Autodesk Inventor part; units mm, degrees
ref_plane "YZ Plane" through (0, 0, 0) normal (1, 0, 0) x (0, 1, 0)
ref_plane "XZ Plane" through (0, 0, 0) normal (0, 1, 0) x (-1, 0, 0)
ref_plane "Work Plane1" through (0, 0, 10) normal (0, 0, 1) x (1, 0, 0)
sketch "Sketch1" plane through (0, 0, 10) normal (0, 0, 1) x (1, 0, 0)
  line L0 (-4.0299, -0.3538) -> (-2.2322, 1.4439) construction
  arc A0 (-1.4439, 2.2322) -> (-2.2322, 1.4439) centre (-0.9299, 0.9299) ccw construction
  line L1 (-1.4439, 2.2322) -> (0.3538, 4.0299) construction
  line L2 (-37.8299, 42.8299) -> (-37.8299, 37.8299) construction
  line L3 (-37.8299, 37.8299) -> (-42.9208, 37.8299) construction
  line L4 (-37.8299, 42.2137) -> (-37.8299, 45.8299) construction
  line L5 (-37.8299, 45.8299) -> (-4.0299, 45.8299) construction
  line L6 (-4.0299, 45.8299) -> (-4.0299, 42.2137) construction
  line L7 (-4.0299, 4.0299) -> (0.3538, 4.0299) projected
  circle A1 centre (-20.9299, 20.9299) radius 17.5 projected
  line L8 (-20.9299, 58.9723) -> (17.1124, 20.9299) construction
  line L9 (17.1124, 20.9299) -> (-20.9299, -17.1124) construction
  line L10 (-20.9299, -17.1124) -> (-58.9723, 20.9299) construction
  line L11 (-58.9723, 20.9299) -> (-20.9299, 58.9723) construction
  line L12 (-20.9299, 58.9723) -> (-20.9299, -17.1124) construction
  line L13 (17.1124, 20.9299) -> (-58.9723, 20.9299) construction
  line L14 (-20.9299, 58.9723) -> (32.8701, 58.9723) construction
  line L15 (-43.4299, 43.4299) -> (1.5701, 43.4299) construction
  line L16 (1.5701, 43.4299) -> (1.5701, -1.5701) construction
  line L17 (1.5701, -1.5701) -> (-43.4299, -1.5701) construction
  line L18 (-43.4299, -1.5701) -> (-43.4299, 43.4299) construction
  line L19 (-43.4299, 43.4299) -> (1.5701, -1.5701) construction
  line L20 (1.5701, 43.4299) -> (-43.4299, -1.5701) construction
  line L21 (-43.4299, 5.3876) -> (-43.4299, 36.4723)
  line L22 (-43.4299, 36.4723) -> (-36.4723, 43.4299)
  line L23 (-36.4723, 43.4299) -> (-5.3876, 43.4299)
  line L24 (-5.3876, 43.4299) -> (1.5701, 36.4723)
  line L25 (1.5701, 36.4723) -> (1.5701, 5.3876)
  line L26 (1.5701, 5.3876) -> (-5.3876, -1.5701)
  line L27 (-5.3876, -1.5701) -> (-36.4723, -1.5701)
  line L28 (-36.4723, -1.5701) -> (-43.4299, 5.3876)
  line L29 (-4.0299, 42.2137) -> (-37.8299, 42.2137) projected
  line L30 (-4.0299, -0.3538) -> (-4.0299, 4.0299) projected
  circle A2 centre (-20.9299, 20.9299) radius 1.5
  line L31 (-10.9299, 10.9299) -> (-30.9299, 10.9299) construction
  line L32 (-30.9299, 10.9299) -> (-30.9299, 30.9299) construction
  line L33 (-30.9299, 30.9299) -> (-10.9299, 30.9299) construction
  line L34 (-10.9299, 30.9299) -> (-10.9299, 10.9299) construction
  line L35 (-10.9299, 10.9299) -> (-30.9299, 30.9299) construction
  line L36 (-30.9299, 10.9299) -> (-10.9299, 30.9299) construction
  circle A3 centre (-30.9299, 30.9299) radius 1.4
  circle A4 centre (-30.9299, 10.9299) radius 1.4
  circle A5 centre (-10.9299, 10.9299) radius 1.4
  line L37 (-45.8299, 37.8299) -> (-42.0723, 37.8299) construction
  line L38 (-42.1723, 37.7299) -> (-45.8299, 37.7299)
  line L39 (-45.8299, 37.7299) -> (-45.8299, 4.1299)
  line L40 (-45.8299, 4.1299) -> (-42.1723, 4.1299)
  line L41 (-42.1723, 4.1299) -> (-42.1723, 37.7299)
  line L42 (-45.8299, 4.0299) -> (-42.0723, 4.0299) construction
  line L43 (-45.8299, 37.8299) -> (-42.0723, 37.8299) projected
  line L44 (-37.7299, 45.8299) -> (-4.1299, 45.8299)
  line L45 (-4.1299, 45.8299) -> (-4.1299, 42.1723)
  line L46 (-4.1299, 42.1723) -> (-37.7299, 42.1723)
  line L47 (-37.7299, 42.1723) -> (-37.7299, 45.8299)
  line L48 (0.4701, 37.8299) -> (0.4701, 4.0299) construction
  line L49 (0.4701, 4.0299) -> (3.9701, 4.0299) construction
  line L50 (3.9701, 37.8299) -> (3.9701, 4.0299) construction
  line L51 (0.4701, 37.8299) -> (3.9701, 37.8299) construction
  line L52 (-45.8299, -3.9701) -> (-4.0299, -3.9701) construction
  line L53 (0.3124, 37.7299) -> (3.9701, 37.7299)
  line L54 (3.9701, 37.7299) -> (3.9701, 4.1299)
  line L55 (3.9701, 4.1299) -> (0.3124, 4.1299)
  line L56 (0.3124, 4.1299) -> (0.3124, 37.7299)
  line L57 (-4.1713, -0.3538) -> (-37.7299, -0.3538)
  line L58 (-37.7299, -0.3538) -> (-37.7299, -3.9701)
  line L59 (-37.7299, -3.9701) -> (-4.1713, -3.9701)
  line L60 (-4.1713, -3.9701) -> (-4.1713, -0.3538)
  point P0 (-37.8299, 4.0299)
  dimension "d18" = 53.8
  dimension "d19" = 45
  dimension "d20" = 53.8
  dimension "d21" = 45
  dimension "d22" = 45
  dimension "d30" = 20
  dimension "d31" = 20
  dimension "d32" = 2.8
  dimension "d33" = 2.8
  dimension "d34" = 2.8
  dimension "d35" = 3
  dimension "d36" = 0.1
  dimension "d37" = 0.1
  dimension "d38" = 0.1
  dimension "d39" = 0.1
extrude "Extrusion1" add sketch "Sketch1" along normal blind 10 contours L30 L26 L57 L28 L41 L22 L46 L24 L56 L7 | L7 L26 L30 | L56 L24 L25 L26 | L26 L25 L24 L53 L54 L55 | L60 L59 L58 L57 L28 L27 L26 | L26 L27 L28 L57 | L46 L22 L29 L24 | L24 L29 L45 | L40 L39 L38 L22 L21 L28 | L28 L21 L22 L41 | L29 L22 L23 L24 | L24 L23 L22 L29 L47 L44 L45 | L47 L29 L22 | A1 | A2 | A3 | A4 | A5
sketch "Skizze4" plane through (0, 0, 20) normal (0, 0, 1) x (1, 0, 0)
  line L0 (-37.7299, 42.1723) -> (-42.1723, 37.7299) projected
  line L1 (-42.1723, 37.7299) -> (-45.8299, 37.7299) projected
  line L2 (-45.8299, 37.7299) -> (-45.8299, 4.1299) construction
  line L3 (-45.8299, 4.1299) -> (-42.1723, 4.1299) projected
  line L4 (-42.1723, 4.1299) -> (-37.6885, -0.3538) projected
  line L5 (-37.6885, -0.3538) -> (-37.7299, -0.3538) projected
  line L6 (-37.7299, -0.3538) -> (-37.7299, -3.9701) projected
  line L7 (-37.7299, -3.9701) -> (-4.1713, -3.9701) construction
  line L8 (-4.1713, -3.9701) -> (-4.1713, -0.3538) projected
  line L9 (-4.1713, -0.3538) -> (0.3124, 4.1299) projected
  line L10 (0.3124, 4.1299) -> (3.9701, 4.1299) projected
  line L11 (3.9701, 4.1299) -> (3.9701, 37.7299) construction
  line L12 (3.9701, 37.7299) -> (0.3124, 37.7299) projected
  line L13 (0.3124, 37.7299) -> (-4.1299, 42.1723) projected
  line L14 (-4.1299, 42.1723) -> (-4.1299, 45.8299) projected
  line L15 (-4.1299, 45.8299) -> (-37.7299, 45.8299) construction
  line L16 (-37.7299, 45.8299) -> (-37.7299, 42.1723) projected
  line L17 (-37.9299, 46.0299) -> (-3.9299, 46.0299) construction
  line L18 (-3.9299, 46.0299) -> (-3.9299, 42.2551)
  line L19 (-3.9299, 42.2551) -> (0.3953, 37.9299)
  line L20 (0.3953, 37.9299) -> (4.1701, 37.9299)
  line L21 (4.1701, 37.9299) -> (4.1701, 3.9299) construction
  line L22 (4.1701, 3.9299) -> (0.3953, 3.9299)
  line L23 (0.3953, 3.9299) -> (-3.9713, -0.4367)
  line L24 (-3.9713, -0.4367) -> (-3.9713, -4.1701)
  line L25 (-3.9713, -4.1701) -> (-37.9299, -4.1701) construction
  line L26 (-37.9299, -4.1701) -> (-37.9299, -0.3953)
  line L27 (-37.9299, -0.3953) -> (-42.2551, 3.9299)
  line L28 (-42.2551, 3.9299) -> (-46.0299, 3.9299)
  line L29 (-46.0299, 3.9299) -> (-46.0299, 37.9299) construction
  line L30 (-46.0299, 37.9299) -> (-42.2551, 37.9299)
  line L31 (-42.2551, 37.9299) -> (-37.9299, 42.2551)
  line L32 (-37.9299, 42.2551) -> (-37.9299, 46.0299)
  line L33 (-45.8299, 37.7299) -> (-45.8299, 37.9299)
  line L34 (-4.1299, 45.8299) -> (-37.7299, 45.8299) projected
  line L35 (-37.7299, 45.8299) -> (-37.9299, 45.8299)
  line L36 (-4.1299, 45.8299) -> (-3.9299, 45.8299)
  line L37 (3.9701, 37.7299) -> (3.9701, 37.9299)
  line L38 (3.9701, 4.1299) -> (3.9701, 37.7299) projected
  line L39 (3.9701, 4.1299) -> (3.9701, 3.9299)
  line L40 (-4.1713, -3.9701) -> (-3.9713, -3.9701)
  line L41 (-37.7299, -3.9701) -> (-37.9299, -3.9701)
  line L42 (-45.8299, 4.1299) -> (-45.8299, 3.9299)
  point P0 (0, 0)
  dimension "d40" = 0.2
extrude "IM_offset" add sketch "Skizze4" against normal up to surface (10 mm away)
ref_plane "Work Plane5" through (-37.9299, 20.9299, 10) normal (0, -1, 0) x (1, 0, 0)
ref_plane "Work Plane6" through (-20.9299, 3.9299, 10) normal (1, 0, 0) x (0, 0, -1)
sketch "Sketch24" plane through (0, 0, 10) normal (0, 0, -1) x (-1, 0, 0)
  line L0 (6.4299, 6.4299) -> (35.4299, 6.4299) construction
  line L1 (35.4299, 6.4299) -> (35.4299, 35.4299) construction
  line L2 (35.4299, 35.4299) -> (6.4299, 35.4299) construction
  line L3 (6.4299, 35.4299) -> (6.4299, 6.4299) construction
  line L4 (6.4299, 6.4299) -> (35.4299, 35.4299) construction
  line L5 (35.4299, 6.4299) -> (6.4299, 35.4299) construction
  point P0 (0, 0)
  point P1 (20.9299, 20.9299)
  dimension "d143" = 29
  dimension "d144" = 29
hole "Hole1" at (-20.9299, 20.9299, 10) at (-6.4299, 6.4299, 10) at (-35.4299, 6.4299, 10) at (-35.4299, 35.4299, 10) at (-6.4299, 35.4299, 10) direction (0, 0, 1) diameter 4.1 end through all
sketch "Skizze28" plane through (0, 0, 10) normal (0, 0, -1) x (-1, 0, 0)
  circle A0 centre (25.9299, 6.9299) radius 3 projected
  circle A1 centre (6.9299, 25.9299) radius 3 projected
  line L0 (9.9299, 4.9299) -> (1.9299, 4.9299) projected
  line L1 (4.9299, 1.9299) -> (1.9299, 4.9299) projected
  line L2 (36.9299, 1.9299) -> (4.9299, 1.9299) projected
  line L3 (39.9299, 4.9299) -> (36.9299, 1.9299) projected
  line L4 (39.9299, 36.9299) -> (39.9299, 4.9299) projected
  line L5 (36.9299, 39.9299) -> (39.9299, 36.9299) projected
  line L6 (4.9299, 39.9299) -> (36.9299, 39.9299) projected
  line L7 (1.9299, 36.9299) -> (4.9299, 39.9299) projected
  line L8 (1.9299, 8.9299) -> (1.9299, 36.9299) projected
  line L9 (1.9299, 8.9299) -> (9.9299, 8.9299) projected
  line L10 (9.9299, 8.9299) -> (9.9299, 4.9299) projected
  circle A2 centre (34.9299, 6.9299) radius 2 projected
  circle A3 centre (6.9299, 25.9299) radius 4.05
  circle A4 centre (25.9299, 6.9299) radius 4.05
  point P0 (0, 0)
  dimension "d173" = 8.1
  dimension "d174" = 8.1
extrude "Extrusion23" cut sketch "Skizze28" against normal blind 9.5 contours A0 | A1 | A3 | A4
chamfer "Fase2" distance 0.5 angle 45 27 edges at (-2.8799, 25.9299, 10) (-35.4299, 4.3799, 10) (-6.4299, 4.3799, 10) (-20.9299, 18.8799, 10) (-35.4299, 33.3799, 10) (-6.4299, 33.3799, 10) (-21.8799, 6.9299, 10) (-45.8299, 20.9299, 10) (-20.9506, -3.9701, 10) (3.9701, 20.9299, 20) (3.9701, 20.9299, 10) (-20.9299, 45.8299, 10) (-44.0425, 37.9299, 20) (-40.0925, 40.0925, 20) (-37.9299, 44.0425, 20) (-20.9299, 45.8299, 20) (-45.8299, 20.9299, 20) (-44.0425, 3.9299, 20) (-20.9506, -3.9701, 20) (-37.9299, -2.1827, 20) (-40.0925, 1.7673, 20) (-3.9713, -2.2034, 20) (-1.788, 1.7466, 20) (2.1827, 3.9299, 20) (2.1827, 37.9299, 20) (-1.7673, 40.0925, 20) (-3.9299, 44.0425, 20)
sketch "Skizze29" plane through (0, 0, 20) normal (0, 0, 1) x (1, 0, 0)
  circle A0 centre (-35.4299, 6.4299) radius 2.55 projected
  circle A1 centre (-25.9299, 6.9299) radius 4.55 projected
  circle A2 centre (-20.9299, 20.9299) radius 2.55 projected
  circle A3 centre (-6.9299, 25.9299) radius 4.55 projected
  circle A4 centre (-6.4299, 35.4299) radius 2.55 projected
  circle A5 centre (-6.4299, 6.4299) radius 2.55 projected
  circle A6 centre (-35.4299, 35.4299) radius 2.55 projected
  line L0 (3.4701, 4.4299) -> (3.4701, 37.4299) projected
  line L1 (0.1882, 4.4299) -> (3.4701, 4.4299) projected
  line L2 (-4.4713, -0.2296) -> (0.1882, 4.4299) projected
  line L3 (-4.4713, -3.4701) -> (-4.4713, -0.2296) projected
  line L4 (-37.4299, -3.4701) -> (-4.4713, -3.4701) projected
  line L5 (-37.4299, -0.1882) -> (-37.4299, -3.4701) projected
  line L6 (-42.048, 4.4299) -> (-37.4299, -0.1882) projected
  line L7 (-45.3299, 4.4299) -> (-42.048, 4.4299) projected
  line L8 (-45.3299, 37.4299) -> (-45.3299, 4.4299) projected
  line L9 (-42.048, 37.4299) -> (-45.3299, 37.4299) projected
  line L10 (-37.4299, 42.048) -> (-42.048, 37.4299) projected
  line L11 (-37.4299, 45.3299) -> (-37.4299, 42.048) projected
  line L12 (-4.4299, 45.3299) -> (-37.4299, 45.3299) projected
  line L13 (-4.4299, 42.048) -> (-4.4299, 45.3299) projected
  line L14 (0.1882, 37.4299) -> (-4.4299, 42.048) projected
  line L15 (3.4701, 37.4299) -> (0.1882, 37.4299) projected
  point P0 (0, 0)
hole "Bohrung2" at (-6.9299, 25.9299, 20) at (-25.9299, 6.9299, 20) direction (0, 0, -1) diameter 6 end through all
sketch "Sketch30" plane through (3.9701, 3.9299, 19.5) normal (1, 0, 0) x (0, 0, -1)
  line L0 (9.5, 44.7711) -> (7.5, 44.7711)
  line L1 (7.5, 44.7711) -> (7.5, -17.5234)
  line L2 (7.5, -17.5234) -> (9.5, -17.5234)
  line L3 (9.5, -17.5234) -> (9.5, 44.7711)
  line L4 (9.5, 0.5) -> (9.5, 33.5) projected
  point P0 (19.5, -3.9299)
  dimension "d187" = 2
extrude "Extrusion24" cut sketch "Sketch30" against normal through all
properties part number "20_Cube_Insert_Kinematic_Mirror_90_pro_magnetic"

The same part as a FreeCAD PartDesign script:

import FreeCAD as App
import Part
import Sketcher


def edges_at(feature, points):
    """Names of the edges that pass closest to the given points."""
    edges = feature.Shape.Edges
    near = lambda p: min(range(len(edges)), key=lambda i: edges[i].distToShape(Part.Vertex(*p))[0])
    return sorted({f"Edge{near(p) + 1}" for p in points})

doc = App.newDocument("Part")
params = doc.addObject("Spreadsheet::Sheet", "Params")
for row, (alias, value) in enumerate([
    ("sketch1_width", "33.6 mm"),
    ("pad1_length", "10 mm"),
    ("sketch2_width", "0.2 mm"),
    ("pad2_length", "10 mm"),
    ("sketch3_diameter", "4.1 mm"),
    ("hole_diameter", "4.1 mm"),
    ("sketch4_diameter", "8.1 mm"),
    ("pocket1_length", "9.5 mm"),
    ("chamfer_size", "0.5 mm"),
    ("sketch5_diameter", "6 mm"),
    ("hole2_diameter", "6 mm"),
    ("sketch6_height", "2 mm"),
], start=1):
    params.set(f"A{row}", alias)
    params.set(f"B{row}", "=" + value)
    params.setAlias(f"B{row}", alias)

body = doc.addObject("PartDesign::Body", "Body")

# Sketch on XY plane
sketch1 = body.newObject("Sketcher::SketchObject", "Sketch")
sketch1.AttachmentSupport = (doc.getObject("XY_Plane"), [""])
sketch1.MapMode = "FlatFace"
sketch1.AttachmentOffset = App.Placement(App.Vector(0, 0, 10), App.Rotation())
sketch1.addGeometry(Part.LineSegment(App.Vector(-4.1713, -0.3538, 0), App.Vector(0.3124, 4.1299, 0)), False)
sketch1.addGeometry(Part.LineSegment(App.Vector(0.3124, 4.1299, 0), App.Vector(3.9701, 4.1299, 0)), False)
sketch1.addGeometry(Part.LineSegment(App.Vector(3.9701, 4.1299, 0), App.Vector(3.9701, 37.7299, 0)), False)
sketch1.addGeometry(Part.LineSegment(App.Vector(3.9701, 37.7299, 0), App.Vector(0.3124, 37.7299, 0)), False)
sketch1.addGeometry(Part.LineSegment(App.Vector(0.312441, 37.729941, 0), App.Vector(-4.129941, 42.172259, 0)), False)
sketch1.addGeometry(Part.LineSegment(App.Vector(-4.1299, 42.1723, 0), App.Vector(-4.1299, 45.8299, 0)), False)
sketch1.addGeometry(Part.LineSegment(App.Vector(-4.1299, 45.8299, 0), App.Vector(-37.7299, 45.8299, 0)), False)
sketch1.addGeometry(Part.LineSegment(App.Vector(-37.7299, 45.8299, 0), App.Vector(-37.7299, 42.1723, 0)), False)
sketch1.addGeometry(Part.LineSegment(App.Vector(-37.7299, 42.1723, 0), App.Vector(-42.1723, 37.7299, 0)), False)
sketch1.addGeometry(Part.LineSegment(App.Vector(-42.1723, 37.7299, 0), App.Vector(-45.8299, 37.7299, 0)), False)
sketch1.addGeometry(Part.LineSegment(App.Vector(-45.8299, 37.7299, 0), App.Vector(-45.8299, 4.1299, 0)), False)
sketch1.addGeometry(Part.LineSegment(App.Vector(-45.8299, 4.1299, 0), App.Vector(-42.1723, 4.1299, 0)), False)
sketch1.addGeometry(Part.LineSegment(App.Vector(-42.172259, 4.129941, 0), App.Vector(-37.688583, -0.3538, 0)), False)
sketch1.addGeometry(Part.LineSegment(App.Vector(-37.688583, -0.3538, 0), App.Vector(-37.7299, -0.3538, 0)), False)
sketch1.addGeometry(Part.LineSegment(App.Vector(-37.7299, -0.3538, 0), App.Vector(-37.7299, -3.9701, 0)), False)
sketch1.addGeometry(Part.LineSegment(App.Vector(-37.7299, -3.9701, 0), App.Vector(-4.1713, -3.9701, 0)), False)
sketch1.addGeometry(Part.LineSegment(App.Vector(-4.1713, -3.9701, 0), App.Vector(-4.1713, -0.3538, 0)), False)
sketch1.addConstraint(Sketcher.Constraint("Coincident", 0, 2, 1, 1))
sketch1.addConstraint(Sketcher.Constraint("Coincident", 1, 2, 2, 1))
sketch1.addConstraint(Sketcher.Constraint("Coincident", 2, 2, 3, 1))
sketch1.addConstraint(Sketcher.Constraint("Coincident", 3, 2, 4, 1))
sketch1.addConstraint(Sketcher.Constraint("Coincident", 4, 2, 5, 1))
sketch1.addConstraint(Sketcher.Constraint("Coincident", 5, 2, 6, 1))
sketch1.addConstraint(Sketcher.Constraint("Coincident", 6, 2, 7, 1))
sketch1.addConstraint(Sketcher.Constraint("Coincident", 7, 2, 8, 1))
sketch1.addConstraint(Sketcher.Constraint("Coincident", 8, 2, 9, 1))
sketch1.addConstraint(Sketcher.Constraint("Coincident", 9, 2, 10, 1))
sketch1.addConstraint(Sketcher.Constraint("Coincident", 10, 2, 11, 1))
sketch1.addConstraint(Sketcher.Constraint("Coincident", 11, 2, 12, 1))
sketch1.addConstraint(Sketcher.Constraint("Coincident", 12, 2, 13, 1))
sketch1.addConstraint(Sketcher.Constraint("Coincident", 13, 2, 14, 1))
sketch1.addConstraint(Sketcher.Constraint("Coincident", 14, 2, 15, 1))
sketch1.addConstraint(Sketcher.Constraint("Coincident", 15, 2, 16, 1))
sketch1.addConstraint(Sketcher.Constraint("Coincident", 16, 2, 0, 1))
sketch1.addConstraint(Sketcher.Constraint("Horizontal", 1))
sketch1.addConstraint(Sketcher.Constraint("Vertical", 2))
sketch1.addConstraint(Sketcher.Constraint("Horizontal", 3))
sketch1.addConstraint(Sketcher.Constraint("Vertical", 5))
sketch1.addConstraint(Sketcher.Constraint("Horizontal", 6))
sketch1.addConstraint(Sketcher.Constraint("Vertical", 7))
sketch1.addConstraint(Sketcher.Constraint("Horizontal", 9))
sketch1.addConstraint(Sketcher.Constraint("Vertical", 10))
sketch1.addConstraint(Sketcher.Constraint("Horizontal", 11))
sketch1.addConstraint(Sketcher.Constraint("Horizontal", 13))
sketch1.addConstraint(Sketcher.Constraint("Vertical", 14))
sketch1.addConstraint(Sketcher.Constraint("Horizontal", 15))
sketch1.addConstraint(Sketcher.Constraint("Vertical", 16))
sketch1.addConstraint(Sketcher.Constraint("Perpendicular", 0, 4))
sketch1.addConstraint(Sketcher.Constraint("Perpendicular", 4, 8))
sketch1.addConstraint(Sketcher.Constraint("Perpendicular", 8, 12))
sketch1.addConstraint(Sketcher.Constraint("Horizontal", 4, 2, 7, 2))
sketch1.addConstraint(Sketcher.Constraint("Horizontal", 3, 2, 8, 2))
sketch1.addConstraint(Sketcher.Constraint("Horizontal", 1, 2, 10, 2))
sketch1.addConstraint(Sketcher.Constraint("Horizontal", 13, 2, 16, 2))
sketch1.addConstraint(Sketcher.Constraint("Vertical", 0, 2, 3, 2))
sketch1.addConstraint(Sketcher.Constraint("Vertical", 8, 2, 11, 2))
sketch1.addConstraint(Sketcher.Constraint("Vertical", 7, 2, 13, 2))
sketch1.addConstraint(Sketcher.Constraint("Equal", 3, 9))
sketch1.addConstraint(Sketcher.Constraint("Equal", 6, 2))
sketch1.addConstraint(Sketcher.Constraint("Equal", 11, 5))
sketch1.addConstraint(Sketcher.Constraint("Equal", 4, 8))
sketch1.addConstraint(Sketcher.Constraint("DistanceX", 6, 2, 6, 1, 33.6))
sketch1.addConstraint(Sketcher.Constraint("DistanceX", 4, 2, 2, 2, 8.1))
sketch1.addConstraint(Sketcher.Constraint("DistanceY", 14, 2, 11, 2, 8.1))
sketch1.addConstraint(Sketcher.Constraint("DistanceY", -1, 1, 0, 2, 4.13))
sketch1.addConstraint(Sketcher.Constraint("DistanceX", -1, 1, 1, 2, 3.97))
sketch1.addConstraint(Sketcher.Constraint("Distance", 0, 6.341))
sketch1.addConstraint(Sketcher.Constraint("DistanceX", 1, 1, 1, 2, 3.6577))
sketch1.setExpression("Constraints[44]", "Params.sketch1_width")
pad1 = body.newObject("PartDesign::Pad", "Pad")
pad1.Profile = sketch1
pad1.setExpression("Length", "Params.pad1_length")

# Sketch on XY plane
sketch2 = body.newObject("Sketcher::SketchObject", "Sketch001")
sketch2.AttachmentSupport = (doc.getObject("XY_Plane"), [""])
sketch2.MapMode = "FlatFace"
sketch2.AttachmentOffset = App.Placement(App.Vector(0, 0, 20), App.Rotation())
sketch2.addGeometry(Part.LineSegment(App.Vector(3.9701, 3.9299, 0), App.Vector(3.9701, 4.1299, 0)), False)
sketch2.addGeometry(Part.LineSegment(App.Vector(3.9701, 4.1299, 0), App.Vector(0.3124, 4.1299, 0)), False)
sketch2.addGeometry(Part.LineSegment(App.Vector(0.3124, 4.1299, 0), App.Vector(-4.1713, -0.3538, 0)), False)
sketch2.addGeometry(Part.LineSegment(App.Vector(-4.1713, -0.3538, 0), App.Vector(-4.1713, -3.9701, 0)), False)
sketch2.addGeometry(Part.LineSegment(App.Vector(-4.1713, -3.9701, 0), App.Vector(-3.9713, -3.9701, 0)), False)
sketch2.addGeometry(Part.LineSegment(App.Vector(-3.9713, -3.9701, 0), App.Vector(-3.9713, -0.4367, 0)), False)
sketch2.addGeometry(Part.LineSegment(App.Vector(-3.9713, -0.4367, 0), App.Vector(0.3953, 3.9299, 0)), False)
sketch2.addGeometry(Part.LineSegment(App.Vector(0.3953, 3.9299, 0), App.Vector(3.9701, 3.9299, 0)), False)
sketch2.addGeometry(Part.LineSegment(App.Vector(-3.9299, 45.8299, 0), App.Vector(-4.1299, 45.8299, 0)), False)
sketch2.addGeometry(Part.LineSegment(App.Vector(-4.1299, 45.8299, 0), App.Vector(-4.1299, 42.1723, 0)), False)
sketch2.addGeometry(Part.LineSegment(App.Vector(-4.1299, 42.1723, 0), App.Vector(0.3124, 37.7299, 0)), False)
sketch2.addGeometry(Part.LineSegment(App.Vector(0.3124, 37.7299, 0), App.Vector(3.9701, 37.7299, 0)), False)
sketch2.addGeometry(Part.LineSegment(App.Vector(3.9701, 37.7299, 0), App.Vector(3.9701, 37.9299, 0)), False)
sketch2.addGeometry(Part.LineSegment(App.Vector(3.9701, 37.9299, 0), App.Vector(0.3953, 37.9299, 0)), False)
sketch2.addGeometry(Part.LineSegment(App.Vector(0.3953, 37.9299, 0), App.Vector(-3.9299, 42.2551, 0)), False)
sketch2.addGeometry(Part.LineSegment(App.Vector(-3.9299, 42.2551, 0), App.Vector(-3.9299, 45.8299, 0)), False)
sketch2.addGeometry(Part.LineSegment(App.Vector(-42.1723, 37.7299, 0), App.Vector(-37.7299, 42.1723, 0)), False)
sketch2.addGeometry(Part.LineSegment(App.Vector(-37.7299, 42.1723, 0), App.Vector(-37.7299, 45.8299, 0)), False)
sketch2.addGeometry(Part.LineSegment(App.Vector(-37.7299, 45.8299, 0), App.Vector(-37.9299, 45.8299, 0)), False)
sketch2.addGeometry(Part.LineSegment(App.Vector(-37.9299, 45.8299, 0), App.Vector(-37.9299, 42.2551, 0)), False)
sketch2.addGeometry(Part.LineSegment(App.Vector(-37.9299, 42.2551, 0), App.Vector(-42.2551, 37.9299, 0)), False)
sketch2.addGeometry(Part.LineSegment(App.Vector(-42.2551, 37.9299, 0), App.Vector(-45.8299, 37.9299, 0)), False)
sketch2.addGeometry(Part.LineSegment(App.Vector(-45.8299, 37.9299, 0), App.Vector(-45.8299, 37.7299, 0)), False)
sketch2.addGeometry(Part.LineSegment(App.Vector(-45.8299, 37.7299, 0), App.Vector(-42.1723, 37.7299, 0)), False)
sketch2.addGeometry(Part.LineSegment(App.Vector(-42.1723, 4.1299, 0), App.Vector(-45.8299, 4.1299, 0)), False)
sketch2.addGeometry(Part.LineSegment(App.Vector(-45.8299, 4.1299, 0), App.Vector(-45.8299, 3.9299, 0)), False)
sketch2.addGeometry(Part.LineSegment(App.Vector(-45.8299, 3.9299, 0), App.Vector(-42.2551, 3.9299, 0)), False)
sketch2.addGeometry(Part.LineSegment(App.Vector(-42.2551, 3.9299, 0), App.Vector(-37.9299, -0.3953, 0)), False)
sketch2.addGeometry(Part.LineSegment(App.Vector(-37.9299, -0.3953, 0), App.Vector(-37.9299, -3.9701, 0)), False)
sketch2.addGeometry(Part.LineSegment(App.Vector(-37.9299, -3.9701, 0), App.Vector(-37.7299, -3.9701, 0)), False)
sketch2.addGeometry(Part.LineSegment(App.Vector(-37.7299, -3.9701, 0), App.Vector(-37.7299, -0.3538, 0)), False)
sketch2.addGeometry(Part.LineSegment(App.Vector(-37.7299, -0.3538, 0), App.Vector(-37.6885, -0.3538, 0)), False)
sketch2.addGeometry(Part.LineSegment(App.Vector(-37.6885, -0.3538, 0), App.Vector(-42.1723, 4.1299, 0)), False)
sketch2.addConstraint(Sketcher.Constraint("Coincident", 0, 2, 1, 1))
sketch2.addConstraint(Sketcher.Constraint("Coincident", 1, 2, 2, 1))
sketch2.addConstraint(Sketcher.Constraint("Coincident", 2, 2, 3, 1))
sketch2.addConstraint(Sketcher.Constraint("Coincident", 3, 2, 4, 1))
sketch2.addConstraint(Sketcher.Constraint("Coincident", 4, 2, 5, 1))
sketch2.addConstraint(Sketcher.Constraint("Coincident", 5, 2, 6, 1))
sketch2.addConstraint(Sketcher.Constraint("Coincident", 6, 2, 7, 1))
sketch2.addConstraint(Sketcher.Constraint("Coincident", 7, 2, 0, 1))
sketch2.addConstraint(Sketcher.Constraint("Coincident", 8, 2, 9, 1))
sketch2.addConstraint(Sketcher.Constraint("Coincident", 9, 2, 10, 1))
sketch2.addConstraint(Sketcher.Constraint("Coincident", 10, 2, 11, 1))
sketch2.addConstraint(Sketcher.Constraint("Coincident", 11, 2, 12, 1))
sketch2.addConstraint(Sketcher.Constraint("Coincident", 12, 2, 13, 1))
sketch2.addConstraint(Sketcher.Constraint("Coincident", 13, 2, 14, 1))
sketch2.addConstraint(Sketcher.Constraint("Coincident", 14, 2, 15, 1))
sketch2.addConstraint(Sketcher.Constraint("Coincident", 15, 2, 8, 1))
sketch2.addConstraint(Sketcher.Constraint("Coincident", 16, 2, 17, 1))
sketch2.addConstraint(Sketcher.Constraint("Coincident", 17, 2, 18, 1))
sketch2.addConstraint(Sketcher.Constraint("Coincident", 18, 2, 19, 1))
sketch2.addConstraint(Sketcher.Constraint("Coincident", 19, 2, 20, 1))
sketch2.addConstraint(Sketcher.Constraint("Coincident", 20, 2, 21, 1))
sketch2.addConstraint(Sketcher.Constraint("Coincident", 21, 2, 22, 1))
sketch2.addConstraint(Sketcher.Constraint("Coincident", 22, 2, 23, 1))
sketch2.addConstraint(Sketcher.Constraint("Coincident", 23, 2, 16, 1))
sketch2.addConstraint(Sketcher.Constraint("Coincident", 24, 2, 25, 1))
sketch2.addConstraint(Sketcher.Constraint("Coincident", 25, 2, 26, 1))
sketch2.addConstraint(Sketcher.Constraint("Coincident", 26, 2, 27, 1))
sketch2.addConstraint(Sketcher.Constraint("Coincident", 27, 2, 28, 1))
sketch2.addConstraint(Sketcher.Constraint("Coincident", 28, 2, 29, 1))
sketch2.addConstraint(Sketcher.Constraint("Coincident", 29, 2, 30, 1))
sketch2.addConstraint(Sketcher.Constraint("Coincident", 30, 2, 31, 1))
sketch2.addConstraint(Sketcher.Constraint("Coincident", 31, 2, 32, 1))
sketch2.addConstraint(Sketcher.Constraint("Coincident", 32, 2, 24, 1))
sketch2.addConstraint(Sketcher.Constraint("Vertical", 0))
sketch2.addConstraint(Sketcher.Constraint("Horizontal", 1))
sketch2.addConstraint(Sketcher.Constraint("Vertical", 3))
sketch2.addConstraint(Sketcher.Constraint("Horizontal", 4))
sketch2.addConstraint(Sketcher.Constraint("Vertical", 5))
sketch2.addConstraint(Sketcher.Constraint("Horizontal", 7))
sketch2.addConstraint(Sketcher.Constraint("Horizontal", 8))
sketch2.addConstraint(Sketcher.Constraint("Vertical", 9))
sketch2.addConstraint(Sketcher.Constraint("Horizontal", 11))
sketch2.addConstraint(Sketcher.Constraint("Vertical", 12))
sketch2.addConstraint(Sketcher.Constraint("Horizontal", 13))
sketch2.addConstraint(Sketcher.Constraint("Vertical", 15))
sketch2.addConstraint(Sketcher.Constraint("Vertical", 17))
sketch2.addConstraint(Sketcher.Constraint("Horizontal", 18))
sketch2.addConstraint(Sketcher.Constraint("Vertical", 19))
sketch2.addConstraint(Sketcher.Constraint("Horizontal", 21))
sketch2.addConstraint(Sketcher.Constraint("Vertical", 22))
sketch2.addConstraint(Sketcher.Constraint("Horizontal", 23))
sketch2.addConstraint(Sketcher.Constraint("Horizontal", 24))
sketch2.addConstraint(Sketcher.Constraint("Vertical", 25))
sketch2.addConstraint(Sketcher.Constraint("Horizontal", 26))
sketch2.addConstraint(Sketcher.Constraint("Vertical", 28))
sketch2.addConstraint(Sketcher.Constraint("Horizontal", 29))
sketch2.addConstraint(Sketcher.Constraint("Vertical", 30))
sketch2.addConstraint(Sketcher.Constraint("Horizontal", 31))
sketch2.addConstraint(Sketcher.Constraint("Parallel", 2, 6))
sketch2.addConstraint(Sketcher.Constraint("Perpendicular", 6, 10))
sketch2.addConstraint(Sketcher.Constraint("Parallel", 10, 14))
sketch2.addConstraint(Sketcher.Constraint("Perpendicular", 14, 16))
sketch2.addConstraint(Sketcher.Constraint("Parallel", 16, 20))
sketch2.addConstraint(Sketcher.Constraint("Perpendicular", 20, 27))
sketch2.addConstraint(Sketcher.Constraint("Parallel", 27, 32))
sketch2.addConstraint(Sketcher.Constraint("Horizontal", 9, 2, 16, 2))
sketch2.addConstraint(Sketcher.Constraint("Horizontal", 15, 2, 17, 2))
sketch2.addConstraint(Sketcher.Constraint("Horizontal", 14, 2, 19, 2))
sketch2.addConstraint(Sketcher.Constraint("Horizontal", 13, 2, 20, 2))
sketch2.addConstraint(Sketcher.Constraint("Horizontal", 11, 2, 22, 2))
sketch2.addConstraint(Sketcher.Constraint("Horizontal", 1, 2, 24, 2))
sketch2.addConstraint(Sketcher.Constraint("Horizontal", 7, 2, 25, 2))
sketch2.addConstraint(Sketcher.Constraint("Horizontal", 4, 2, 28, 2))
sketch2.addConstraint(Sketcher.Constraint("Horizontal", 2, 2, 30, 2))
sketch2.addConstraint(Sketcher.Constraint("Vertical", 1, 2, 10, 2))
sketch2.addConstraint(Sketcher.Constraint("Vertical", 7, 2, 11, 2))
sketch2.addConstraint(Sketcher.Constraint("Vertical", 6, 2, 13, 2))
sketch2.addConstraint(Sketcher.Constraint("Vertical", 22, 2, 24, 2))
sketch2.addConstraint(Sketcher.Constraint("Vertical", 20, 2, 26, 2))
sketch2.addConstraint(Sketcher.Constraint("Vertical", 19, 2, 27, 2))
sketch2.addConstraint(Sketcher.Constraint("Vertical", 17, 2, 29, 2))
sketch2.addConstraint(Sketcher.Constraint("Vertical", 23, 2, 32, 2))
sketch2.addConstraint(Sketcher.Constraint("Equal", 4, 8))
sketch2.addConstraint(Sketcher.Constraint("Equal", 8, 18))
sketch2.addConstraint(Sketcher.Constraint("Equal", 13, 21))
sketch2.addConstraint(Sketcher.Constraint("Equal", 11, 23))
sketch2.addConstraint(Sketcher.Constraint("Equal", 29, 0))
sketch2.addConstraint(Sketcher.Constraint("Equal", 24, 9))
sketch2.addConstraint(Sketcher.Constraint("Equal", 0, 12))
sketch2.addConstraint(Sketcher.Constraint("Equal", 19, 28))
sketch2.addConstraint(Sketcher.Constraint("DistanceX", 4, 1, 4, 2, 0.2))
sketch2.addConstraint(Sketcher.Constraint("DistanceX", 18, 2, 15, 2, 34.0))
sketch2.addConstraint(Sketcher.Constraint("DistanceY", 25, 2, 21, 2, 34.0))
sketch2.addConstraint(Sketcher.Constraint("DistanceY", 3, 2, 1, 2, 8.1))
sketch2.addConstraint(Sketcher.Constraint("DistanceX", -1, 1, 0, 2, 3.97))
sketch2.addConstraint(Sketcher.Constraint("DistanceY", -1, 1, 0, 2, 4.13))
sketch2.addConstraint(Sketcher.Constraint("Distance", 2, 6.341))
sketch2.addConstraint(Sketcher.Constraint("DistanceX", 1, 2, 1, 1, 3.6577))
sketch2.addConstraint(Sketcher.Constraint("DistanceX", 7, 1, 7, 2, 3.5748))
sketch2.setExpression("Constraints[90]", "Params.sketch2_width")
pad2 = body.newObject("PartDesign::Pad", "Pad001")
pad2.Profile = sketch2
pad2.setExpression("Length", "Params.pad2_length")
pad2.Reversed = True

# Sketch on XY plane
sketch3 = body.newObject("Sketcher::SketchObject", "Sketch002")
sketch3.AttachmentSupport = (doc.getObject("XY_Plane"), [""])
sketch3.MapMode = "FlatFace"
sketch3.AttachmentOffset = App.Placement(App.Vector(0, 0, 10), App.Rotation())
sketch3.addGeometry(Part.Circle(App.Vector(-20.9299, 20.9299, 0), App.Vector(0, 0, 1), 2.05), False)
sketch3.addGeometry(Part.Circle(App.Vector(-6.4299, 6.4299, 0), App.Vector(0, 0, 1), 2.05), False)
sketch3.addGeometry(Part.Circle(App.Vector(-35.4299, 6.4299, 0), App.Vector(0, 0, 1), 2.05), False)
sketch3.addGeometry(Part.Circle(App.Vector(-35.4299, 35.4299, 0), App.Vector(0, 0, 1), 2.05), False)
sketch3.addGeometry(Part.Circle(App.Vector(-6.4299, 35.4299, 0), App.Vector(0, 0, 1), 2.05), False)
sketch3.addConstraint(Sketcher.Constraint("Equal", 0, 1))
sketch3.addConstraint(Sketcher.Constraint("Equal", 1, 2))
sketch3.addConstraint(Sketcher.Constraint("Equal", 2, 3))
sketch3.addConstraint(Sketcher.Constraint("Equal", 3, 4))
sketch3.addConstraint(Sketcher.Constraint("Horizontal", 1, 3, 2, 3))
sketch3.addConstraint(Sketcher.Constraint("Horizontal", 3, 3, 4, 3))
sketch3.addConstraint(Sketcher.Constraint("Vertical", 2, 3, 3, 3))
sketch3.addConstraint(Sketcher.Constraint("Vertical", 1, 3, 4, 3))
sketch3.addConstraint(Sketcher.Constraint("Diameter", 0, 4.1))
sketch3.addConstraint(Sketcher.Constraint("DistanceX", 2, 3, 1, 3, 29.0))
sketch3.addConstraint(Sketcher.Constraint("DistanceY", 2, 3, 3, 3, 29.0))
sketch3.addConstraint(Sketcher.Constraint("DistanceX", 0, 3, 1, 3, 14.5))
sketch3.addConstraint(Sketcher.Constraint("DistanceY", 1, 3, 0, 3, 14.5))
sketch3.addConstraint(Sketcher.Constraint("DistanceX", 0, 3, -1, 1, 20.93))
sketch3.addConstraint(Sketcher.Constraint("DistanceY", -1, 1, 0, 3, 20.93))
sketch3.setExpression("Constraints[8]", "Params.sketch3_diameter")
doc.recompute()
hole = body.newObject("PartDesign::Hole", "Hole")
hole.Profile = sketch3
hole.ThreadType = "None"
hole.setExpression("Diameter", "Params.hole_diameter")
hole.DepthType = "ThroughAll"
hole.Reversed = True

# Sketch on XY plane
sketch4 = body.newObject("Sketcher::SketchObject", "Sketch003")
sketch4.AttachmentSupport = (doc.getObject("XY_Plane"), [""])
sketch4.MapMode = "FlatFace"
sketch4.AttachmentOffset = App.Placement(App.Vector(0, 0, 10), App.Rotation())
sketch4.addGeometry(Part.Circle(App.Vector(-25.9299, 6.9299, 0), App.Vector(0, 0, 1), 4.05), False)
sketch4.addGeometry(Part.Circle(App.Vector(-6.9299, 25.9299, 0), App.Vector(0, 0, 1), 4.05), False)
sketch4.addConstraint(Sketcher.Constraint("Equal", 0, 1))
sketch4.addConstraint(Sketcher.Constraint("Diameter", 0, 8.1))
sketch4.addConstraint(Sketcher.Constraint("DistanceX", 0, 3, 1, 3, 19.0))
sketch4.addConstraint(Sketcher.Constraint("DistanceY", 0, 3, 1, 3, 19.0))
sketch4.addConstraint(Sketcher.Constraint("DistanceX", 0, 3, -1, 1, 25.93))
sketch4.addConstraint(Sketcher.Constraint("DistanceY", -1, 1, 0, 3, 6.93))
sketch4.setExpression("Constraints[1]", "Params.sketch4_diameter")
pocket1 = body.newObject("PartDesign::Pocket", "Pocket")
pocket1.Profile = sketch4
pocket1.setExpression("Length", "Params.pocket1_length")
pocket1.Reversed = True
doc.recompute()

chamfer = body.newObject("PartDesign::Chamfer", "Chamfer")
chamfer.Base = (pocket1, edges_at(pocket1, [
    (-2.88, 25.93, 10),
    (-35.43, 4.38, 10),
    (-6.43, 4.38, 10),
    (-20.93, 18.88, 10),
    (-35.43, 33.38, 10),
    (-6.43, 33.38, 10),
    (-21.88, 6.93, 10),
    (-45.83, 20.93, 10),
    (-20.951, -3.97, 10),
    (3.97, 20.93, 20),
    (3.97, 20.93, 10),
    (-20.93, 45.83, 10),
    (-44.042, 37.93, 20),
    (-40.093, 40.093, 20),
    (-37.93, 44.042, 20),
    (-20.93, 45.83, 20),
    (-45.83, 20.93, 20),
    (-44.042, 3.93, 20),
    (-20.951, -3.97, 20),
    (-37.93, -2.183, 20),
    (-40.093, 1.767, 20),
    (-3.971, -2.203, 20),
    (-1.788, 1.747, 20),
    (2.183, 3.93, 20),
    (2.183, 37.93, 20),
    (-1.767, 40.093, 20),
    (-3.93, 44.042, 20),
]))
chamfer.setExpression("Size", "Params.chamfer_size")

# Sketch on XY plane
sketch5 = body.newObject("Sketcher::SketchObject", "Sketch004")
sketch5.AttachmentSupport = (doc.getObject("XY_Plane"), [""])
sketch5.MapMode = "FlatFace"
sketch5.AttachmentOffset = App.Placement(App.Vector(0, 0, 20), App.Rotation())
sketch5.addGeometry(Part.Circle(App.Vector(-6.9299, 25.9299, 0), App.Vector(0, 0, 1), 3), False)
sketch5.addGeometry(Part.Circle(App.Vector(-25.9299, 6.9299, 0), App.Vector(0, 0, 1), 3), False)
sketch5.addConstraint(Sketcher.Constraint("Equal", 0, 1))
sketch5.addConstraint(Sketcher.Constraint("Diameter", 0, 6.0))
sketch5.addConstraint(Sketcher.Constraint("DistanceX", 1, 3, 0, 3, 19.0))
sketch5.addConstraint(Sketcher.Constraint("DistanceY", 1, 3, 0, 3, 19.0))
sketch5.addConstraint(Sketcher.Constraint("DistanceX", 0, 3, -1, 1, 6.93))
sketch5.addConstraint(Sketcher.Constraint("DistanceY", -1, 1, 0, 3, 25.93))
sketch5.setExpression("Constraints[1]", "Params.sketch5_diameter")
doc.recompute()
hole2 = body.newObject("PartDesign::Hole", "Hole001")
hole2.Profile = sketch5
hole2.ThreadType = "None"
hole2.setExpression("Diameter", "Params.hole2_diameter")
hole2.DepthType = "ThroughAll"

# Sketch on YZ plane
sketch6 = body.newObject("Sketcher::SketchObject", "Sketch005")
sketch6.AttachmentSupport = (doc.getObject("YZ_Plane"), [""])
sketch6.MapMode = "FlatFace"
sketch6.AttachmentOffset = App.Placement(App.Vector(0, 0, 3.9701), App.Rotation())
sketch6.addGeometry(Part.LineSegment(App.Vector(-13.5935, 10, 0), App.Vector(48.701, 10, 0)), False)
sketch6.addGeometry(Part.LineSegment(App.Vector(48.701, 10, 0), App.Vector(48.701, 12, 0)), False)
sketch6.addGeometry(Part.LineSegment(App.Vector(48.701, 12, 0), App.Vector(-13.5935, 12, 0)), False)
sketch6.addGeometry(Part.LineSegment(App.Vector(-13.5935, 12, 0), App.Vector(-13.5935, 10, 0)), False)
sketch6.addConstraint(Sketcher.Constraint("Coincident", 0, 2, 1, 1))
sketch6.addConstraint(Sketcher.Constraint("Coincident", 1, 2, 2, 1))
sketch6.addConstraint(Sketcher.Constraint("Coincident", 2, 2, 3, 1))
sketch6.addConstraint(Sketcher.Constraint("Coincident", 3, 2, 0, 1))
sketch6.addConstraint(Sketcher.Constraint("Horizontal", 0))
sketch6.addConstraint(Sketcher.Constraint("Vertical", 1))
sketch6.addConstraint(Sketcher.Constraint("Horizontal", 2))
sketch6.addConstraint(Sketcher.Constraint("Vertical", 3))
sketch6.addConstraint(Sketcher.Constraint("DistanceY", 1, 1, 1, 2, 2.0))
sketch6.addConstraint(Sketcher.Constraint("DistanceY", -1, 1, 0, 2, 10.0))
sketch6.addConstraint(Sketcher.Constraint("DistanceX", 0, 1, 0, 2, 62.2945))
sketch6.addConstraint(Sketcher.Constraint("DistanceX", -1, 1, 0, 2, 48.701))
sketch6.setExpression("Constraints[8]", "Params.sketch6_height")
pocket2 = body.newObject("PartDesign::Pocket", "Pocket001")
pocket2.Profile = sketch6
pocket2.Type = "ThroughAll"

doc.recompute()
